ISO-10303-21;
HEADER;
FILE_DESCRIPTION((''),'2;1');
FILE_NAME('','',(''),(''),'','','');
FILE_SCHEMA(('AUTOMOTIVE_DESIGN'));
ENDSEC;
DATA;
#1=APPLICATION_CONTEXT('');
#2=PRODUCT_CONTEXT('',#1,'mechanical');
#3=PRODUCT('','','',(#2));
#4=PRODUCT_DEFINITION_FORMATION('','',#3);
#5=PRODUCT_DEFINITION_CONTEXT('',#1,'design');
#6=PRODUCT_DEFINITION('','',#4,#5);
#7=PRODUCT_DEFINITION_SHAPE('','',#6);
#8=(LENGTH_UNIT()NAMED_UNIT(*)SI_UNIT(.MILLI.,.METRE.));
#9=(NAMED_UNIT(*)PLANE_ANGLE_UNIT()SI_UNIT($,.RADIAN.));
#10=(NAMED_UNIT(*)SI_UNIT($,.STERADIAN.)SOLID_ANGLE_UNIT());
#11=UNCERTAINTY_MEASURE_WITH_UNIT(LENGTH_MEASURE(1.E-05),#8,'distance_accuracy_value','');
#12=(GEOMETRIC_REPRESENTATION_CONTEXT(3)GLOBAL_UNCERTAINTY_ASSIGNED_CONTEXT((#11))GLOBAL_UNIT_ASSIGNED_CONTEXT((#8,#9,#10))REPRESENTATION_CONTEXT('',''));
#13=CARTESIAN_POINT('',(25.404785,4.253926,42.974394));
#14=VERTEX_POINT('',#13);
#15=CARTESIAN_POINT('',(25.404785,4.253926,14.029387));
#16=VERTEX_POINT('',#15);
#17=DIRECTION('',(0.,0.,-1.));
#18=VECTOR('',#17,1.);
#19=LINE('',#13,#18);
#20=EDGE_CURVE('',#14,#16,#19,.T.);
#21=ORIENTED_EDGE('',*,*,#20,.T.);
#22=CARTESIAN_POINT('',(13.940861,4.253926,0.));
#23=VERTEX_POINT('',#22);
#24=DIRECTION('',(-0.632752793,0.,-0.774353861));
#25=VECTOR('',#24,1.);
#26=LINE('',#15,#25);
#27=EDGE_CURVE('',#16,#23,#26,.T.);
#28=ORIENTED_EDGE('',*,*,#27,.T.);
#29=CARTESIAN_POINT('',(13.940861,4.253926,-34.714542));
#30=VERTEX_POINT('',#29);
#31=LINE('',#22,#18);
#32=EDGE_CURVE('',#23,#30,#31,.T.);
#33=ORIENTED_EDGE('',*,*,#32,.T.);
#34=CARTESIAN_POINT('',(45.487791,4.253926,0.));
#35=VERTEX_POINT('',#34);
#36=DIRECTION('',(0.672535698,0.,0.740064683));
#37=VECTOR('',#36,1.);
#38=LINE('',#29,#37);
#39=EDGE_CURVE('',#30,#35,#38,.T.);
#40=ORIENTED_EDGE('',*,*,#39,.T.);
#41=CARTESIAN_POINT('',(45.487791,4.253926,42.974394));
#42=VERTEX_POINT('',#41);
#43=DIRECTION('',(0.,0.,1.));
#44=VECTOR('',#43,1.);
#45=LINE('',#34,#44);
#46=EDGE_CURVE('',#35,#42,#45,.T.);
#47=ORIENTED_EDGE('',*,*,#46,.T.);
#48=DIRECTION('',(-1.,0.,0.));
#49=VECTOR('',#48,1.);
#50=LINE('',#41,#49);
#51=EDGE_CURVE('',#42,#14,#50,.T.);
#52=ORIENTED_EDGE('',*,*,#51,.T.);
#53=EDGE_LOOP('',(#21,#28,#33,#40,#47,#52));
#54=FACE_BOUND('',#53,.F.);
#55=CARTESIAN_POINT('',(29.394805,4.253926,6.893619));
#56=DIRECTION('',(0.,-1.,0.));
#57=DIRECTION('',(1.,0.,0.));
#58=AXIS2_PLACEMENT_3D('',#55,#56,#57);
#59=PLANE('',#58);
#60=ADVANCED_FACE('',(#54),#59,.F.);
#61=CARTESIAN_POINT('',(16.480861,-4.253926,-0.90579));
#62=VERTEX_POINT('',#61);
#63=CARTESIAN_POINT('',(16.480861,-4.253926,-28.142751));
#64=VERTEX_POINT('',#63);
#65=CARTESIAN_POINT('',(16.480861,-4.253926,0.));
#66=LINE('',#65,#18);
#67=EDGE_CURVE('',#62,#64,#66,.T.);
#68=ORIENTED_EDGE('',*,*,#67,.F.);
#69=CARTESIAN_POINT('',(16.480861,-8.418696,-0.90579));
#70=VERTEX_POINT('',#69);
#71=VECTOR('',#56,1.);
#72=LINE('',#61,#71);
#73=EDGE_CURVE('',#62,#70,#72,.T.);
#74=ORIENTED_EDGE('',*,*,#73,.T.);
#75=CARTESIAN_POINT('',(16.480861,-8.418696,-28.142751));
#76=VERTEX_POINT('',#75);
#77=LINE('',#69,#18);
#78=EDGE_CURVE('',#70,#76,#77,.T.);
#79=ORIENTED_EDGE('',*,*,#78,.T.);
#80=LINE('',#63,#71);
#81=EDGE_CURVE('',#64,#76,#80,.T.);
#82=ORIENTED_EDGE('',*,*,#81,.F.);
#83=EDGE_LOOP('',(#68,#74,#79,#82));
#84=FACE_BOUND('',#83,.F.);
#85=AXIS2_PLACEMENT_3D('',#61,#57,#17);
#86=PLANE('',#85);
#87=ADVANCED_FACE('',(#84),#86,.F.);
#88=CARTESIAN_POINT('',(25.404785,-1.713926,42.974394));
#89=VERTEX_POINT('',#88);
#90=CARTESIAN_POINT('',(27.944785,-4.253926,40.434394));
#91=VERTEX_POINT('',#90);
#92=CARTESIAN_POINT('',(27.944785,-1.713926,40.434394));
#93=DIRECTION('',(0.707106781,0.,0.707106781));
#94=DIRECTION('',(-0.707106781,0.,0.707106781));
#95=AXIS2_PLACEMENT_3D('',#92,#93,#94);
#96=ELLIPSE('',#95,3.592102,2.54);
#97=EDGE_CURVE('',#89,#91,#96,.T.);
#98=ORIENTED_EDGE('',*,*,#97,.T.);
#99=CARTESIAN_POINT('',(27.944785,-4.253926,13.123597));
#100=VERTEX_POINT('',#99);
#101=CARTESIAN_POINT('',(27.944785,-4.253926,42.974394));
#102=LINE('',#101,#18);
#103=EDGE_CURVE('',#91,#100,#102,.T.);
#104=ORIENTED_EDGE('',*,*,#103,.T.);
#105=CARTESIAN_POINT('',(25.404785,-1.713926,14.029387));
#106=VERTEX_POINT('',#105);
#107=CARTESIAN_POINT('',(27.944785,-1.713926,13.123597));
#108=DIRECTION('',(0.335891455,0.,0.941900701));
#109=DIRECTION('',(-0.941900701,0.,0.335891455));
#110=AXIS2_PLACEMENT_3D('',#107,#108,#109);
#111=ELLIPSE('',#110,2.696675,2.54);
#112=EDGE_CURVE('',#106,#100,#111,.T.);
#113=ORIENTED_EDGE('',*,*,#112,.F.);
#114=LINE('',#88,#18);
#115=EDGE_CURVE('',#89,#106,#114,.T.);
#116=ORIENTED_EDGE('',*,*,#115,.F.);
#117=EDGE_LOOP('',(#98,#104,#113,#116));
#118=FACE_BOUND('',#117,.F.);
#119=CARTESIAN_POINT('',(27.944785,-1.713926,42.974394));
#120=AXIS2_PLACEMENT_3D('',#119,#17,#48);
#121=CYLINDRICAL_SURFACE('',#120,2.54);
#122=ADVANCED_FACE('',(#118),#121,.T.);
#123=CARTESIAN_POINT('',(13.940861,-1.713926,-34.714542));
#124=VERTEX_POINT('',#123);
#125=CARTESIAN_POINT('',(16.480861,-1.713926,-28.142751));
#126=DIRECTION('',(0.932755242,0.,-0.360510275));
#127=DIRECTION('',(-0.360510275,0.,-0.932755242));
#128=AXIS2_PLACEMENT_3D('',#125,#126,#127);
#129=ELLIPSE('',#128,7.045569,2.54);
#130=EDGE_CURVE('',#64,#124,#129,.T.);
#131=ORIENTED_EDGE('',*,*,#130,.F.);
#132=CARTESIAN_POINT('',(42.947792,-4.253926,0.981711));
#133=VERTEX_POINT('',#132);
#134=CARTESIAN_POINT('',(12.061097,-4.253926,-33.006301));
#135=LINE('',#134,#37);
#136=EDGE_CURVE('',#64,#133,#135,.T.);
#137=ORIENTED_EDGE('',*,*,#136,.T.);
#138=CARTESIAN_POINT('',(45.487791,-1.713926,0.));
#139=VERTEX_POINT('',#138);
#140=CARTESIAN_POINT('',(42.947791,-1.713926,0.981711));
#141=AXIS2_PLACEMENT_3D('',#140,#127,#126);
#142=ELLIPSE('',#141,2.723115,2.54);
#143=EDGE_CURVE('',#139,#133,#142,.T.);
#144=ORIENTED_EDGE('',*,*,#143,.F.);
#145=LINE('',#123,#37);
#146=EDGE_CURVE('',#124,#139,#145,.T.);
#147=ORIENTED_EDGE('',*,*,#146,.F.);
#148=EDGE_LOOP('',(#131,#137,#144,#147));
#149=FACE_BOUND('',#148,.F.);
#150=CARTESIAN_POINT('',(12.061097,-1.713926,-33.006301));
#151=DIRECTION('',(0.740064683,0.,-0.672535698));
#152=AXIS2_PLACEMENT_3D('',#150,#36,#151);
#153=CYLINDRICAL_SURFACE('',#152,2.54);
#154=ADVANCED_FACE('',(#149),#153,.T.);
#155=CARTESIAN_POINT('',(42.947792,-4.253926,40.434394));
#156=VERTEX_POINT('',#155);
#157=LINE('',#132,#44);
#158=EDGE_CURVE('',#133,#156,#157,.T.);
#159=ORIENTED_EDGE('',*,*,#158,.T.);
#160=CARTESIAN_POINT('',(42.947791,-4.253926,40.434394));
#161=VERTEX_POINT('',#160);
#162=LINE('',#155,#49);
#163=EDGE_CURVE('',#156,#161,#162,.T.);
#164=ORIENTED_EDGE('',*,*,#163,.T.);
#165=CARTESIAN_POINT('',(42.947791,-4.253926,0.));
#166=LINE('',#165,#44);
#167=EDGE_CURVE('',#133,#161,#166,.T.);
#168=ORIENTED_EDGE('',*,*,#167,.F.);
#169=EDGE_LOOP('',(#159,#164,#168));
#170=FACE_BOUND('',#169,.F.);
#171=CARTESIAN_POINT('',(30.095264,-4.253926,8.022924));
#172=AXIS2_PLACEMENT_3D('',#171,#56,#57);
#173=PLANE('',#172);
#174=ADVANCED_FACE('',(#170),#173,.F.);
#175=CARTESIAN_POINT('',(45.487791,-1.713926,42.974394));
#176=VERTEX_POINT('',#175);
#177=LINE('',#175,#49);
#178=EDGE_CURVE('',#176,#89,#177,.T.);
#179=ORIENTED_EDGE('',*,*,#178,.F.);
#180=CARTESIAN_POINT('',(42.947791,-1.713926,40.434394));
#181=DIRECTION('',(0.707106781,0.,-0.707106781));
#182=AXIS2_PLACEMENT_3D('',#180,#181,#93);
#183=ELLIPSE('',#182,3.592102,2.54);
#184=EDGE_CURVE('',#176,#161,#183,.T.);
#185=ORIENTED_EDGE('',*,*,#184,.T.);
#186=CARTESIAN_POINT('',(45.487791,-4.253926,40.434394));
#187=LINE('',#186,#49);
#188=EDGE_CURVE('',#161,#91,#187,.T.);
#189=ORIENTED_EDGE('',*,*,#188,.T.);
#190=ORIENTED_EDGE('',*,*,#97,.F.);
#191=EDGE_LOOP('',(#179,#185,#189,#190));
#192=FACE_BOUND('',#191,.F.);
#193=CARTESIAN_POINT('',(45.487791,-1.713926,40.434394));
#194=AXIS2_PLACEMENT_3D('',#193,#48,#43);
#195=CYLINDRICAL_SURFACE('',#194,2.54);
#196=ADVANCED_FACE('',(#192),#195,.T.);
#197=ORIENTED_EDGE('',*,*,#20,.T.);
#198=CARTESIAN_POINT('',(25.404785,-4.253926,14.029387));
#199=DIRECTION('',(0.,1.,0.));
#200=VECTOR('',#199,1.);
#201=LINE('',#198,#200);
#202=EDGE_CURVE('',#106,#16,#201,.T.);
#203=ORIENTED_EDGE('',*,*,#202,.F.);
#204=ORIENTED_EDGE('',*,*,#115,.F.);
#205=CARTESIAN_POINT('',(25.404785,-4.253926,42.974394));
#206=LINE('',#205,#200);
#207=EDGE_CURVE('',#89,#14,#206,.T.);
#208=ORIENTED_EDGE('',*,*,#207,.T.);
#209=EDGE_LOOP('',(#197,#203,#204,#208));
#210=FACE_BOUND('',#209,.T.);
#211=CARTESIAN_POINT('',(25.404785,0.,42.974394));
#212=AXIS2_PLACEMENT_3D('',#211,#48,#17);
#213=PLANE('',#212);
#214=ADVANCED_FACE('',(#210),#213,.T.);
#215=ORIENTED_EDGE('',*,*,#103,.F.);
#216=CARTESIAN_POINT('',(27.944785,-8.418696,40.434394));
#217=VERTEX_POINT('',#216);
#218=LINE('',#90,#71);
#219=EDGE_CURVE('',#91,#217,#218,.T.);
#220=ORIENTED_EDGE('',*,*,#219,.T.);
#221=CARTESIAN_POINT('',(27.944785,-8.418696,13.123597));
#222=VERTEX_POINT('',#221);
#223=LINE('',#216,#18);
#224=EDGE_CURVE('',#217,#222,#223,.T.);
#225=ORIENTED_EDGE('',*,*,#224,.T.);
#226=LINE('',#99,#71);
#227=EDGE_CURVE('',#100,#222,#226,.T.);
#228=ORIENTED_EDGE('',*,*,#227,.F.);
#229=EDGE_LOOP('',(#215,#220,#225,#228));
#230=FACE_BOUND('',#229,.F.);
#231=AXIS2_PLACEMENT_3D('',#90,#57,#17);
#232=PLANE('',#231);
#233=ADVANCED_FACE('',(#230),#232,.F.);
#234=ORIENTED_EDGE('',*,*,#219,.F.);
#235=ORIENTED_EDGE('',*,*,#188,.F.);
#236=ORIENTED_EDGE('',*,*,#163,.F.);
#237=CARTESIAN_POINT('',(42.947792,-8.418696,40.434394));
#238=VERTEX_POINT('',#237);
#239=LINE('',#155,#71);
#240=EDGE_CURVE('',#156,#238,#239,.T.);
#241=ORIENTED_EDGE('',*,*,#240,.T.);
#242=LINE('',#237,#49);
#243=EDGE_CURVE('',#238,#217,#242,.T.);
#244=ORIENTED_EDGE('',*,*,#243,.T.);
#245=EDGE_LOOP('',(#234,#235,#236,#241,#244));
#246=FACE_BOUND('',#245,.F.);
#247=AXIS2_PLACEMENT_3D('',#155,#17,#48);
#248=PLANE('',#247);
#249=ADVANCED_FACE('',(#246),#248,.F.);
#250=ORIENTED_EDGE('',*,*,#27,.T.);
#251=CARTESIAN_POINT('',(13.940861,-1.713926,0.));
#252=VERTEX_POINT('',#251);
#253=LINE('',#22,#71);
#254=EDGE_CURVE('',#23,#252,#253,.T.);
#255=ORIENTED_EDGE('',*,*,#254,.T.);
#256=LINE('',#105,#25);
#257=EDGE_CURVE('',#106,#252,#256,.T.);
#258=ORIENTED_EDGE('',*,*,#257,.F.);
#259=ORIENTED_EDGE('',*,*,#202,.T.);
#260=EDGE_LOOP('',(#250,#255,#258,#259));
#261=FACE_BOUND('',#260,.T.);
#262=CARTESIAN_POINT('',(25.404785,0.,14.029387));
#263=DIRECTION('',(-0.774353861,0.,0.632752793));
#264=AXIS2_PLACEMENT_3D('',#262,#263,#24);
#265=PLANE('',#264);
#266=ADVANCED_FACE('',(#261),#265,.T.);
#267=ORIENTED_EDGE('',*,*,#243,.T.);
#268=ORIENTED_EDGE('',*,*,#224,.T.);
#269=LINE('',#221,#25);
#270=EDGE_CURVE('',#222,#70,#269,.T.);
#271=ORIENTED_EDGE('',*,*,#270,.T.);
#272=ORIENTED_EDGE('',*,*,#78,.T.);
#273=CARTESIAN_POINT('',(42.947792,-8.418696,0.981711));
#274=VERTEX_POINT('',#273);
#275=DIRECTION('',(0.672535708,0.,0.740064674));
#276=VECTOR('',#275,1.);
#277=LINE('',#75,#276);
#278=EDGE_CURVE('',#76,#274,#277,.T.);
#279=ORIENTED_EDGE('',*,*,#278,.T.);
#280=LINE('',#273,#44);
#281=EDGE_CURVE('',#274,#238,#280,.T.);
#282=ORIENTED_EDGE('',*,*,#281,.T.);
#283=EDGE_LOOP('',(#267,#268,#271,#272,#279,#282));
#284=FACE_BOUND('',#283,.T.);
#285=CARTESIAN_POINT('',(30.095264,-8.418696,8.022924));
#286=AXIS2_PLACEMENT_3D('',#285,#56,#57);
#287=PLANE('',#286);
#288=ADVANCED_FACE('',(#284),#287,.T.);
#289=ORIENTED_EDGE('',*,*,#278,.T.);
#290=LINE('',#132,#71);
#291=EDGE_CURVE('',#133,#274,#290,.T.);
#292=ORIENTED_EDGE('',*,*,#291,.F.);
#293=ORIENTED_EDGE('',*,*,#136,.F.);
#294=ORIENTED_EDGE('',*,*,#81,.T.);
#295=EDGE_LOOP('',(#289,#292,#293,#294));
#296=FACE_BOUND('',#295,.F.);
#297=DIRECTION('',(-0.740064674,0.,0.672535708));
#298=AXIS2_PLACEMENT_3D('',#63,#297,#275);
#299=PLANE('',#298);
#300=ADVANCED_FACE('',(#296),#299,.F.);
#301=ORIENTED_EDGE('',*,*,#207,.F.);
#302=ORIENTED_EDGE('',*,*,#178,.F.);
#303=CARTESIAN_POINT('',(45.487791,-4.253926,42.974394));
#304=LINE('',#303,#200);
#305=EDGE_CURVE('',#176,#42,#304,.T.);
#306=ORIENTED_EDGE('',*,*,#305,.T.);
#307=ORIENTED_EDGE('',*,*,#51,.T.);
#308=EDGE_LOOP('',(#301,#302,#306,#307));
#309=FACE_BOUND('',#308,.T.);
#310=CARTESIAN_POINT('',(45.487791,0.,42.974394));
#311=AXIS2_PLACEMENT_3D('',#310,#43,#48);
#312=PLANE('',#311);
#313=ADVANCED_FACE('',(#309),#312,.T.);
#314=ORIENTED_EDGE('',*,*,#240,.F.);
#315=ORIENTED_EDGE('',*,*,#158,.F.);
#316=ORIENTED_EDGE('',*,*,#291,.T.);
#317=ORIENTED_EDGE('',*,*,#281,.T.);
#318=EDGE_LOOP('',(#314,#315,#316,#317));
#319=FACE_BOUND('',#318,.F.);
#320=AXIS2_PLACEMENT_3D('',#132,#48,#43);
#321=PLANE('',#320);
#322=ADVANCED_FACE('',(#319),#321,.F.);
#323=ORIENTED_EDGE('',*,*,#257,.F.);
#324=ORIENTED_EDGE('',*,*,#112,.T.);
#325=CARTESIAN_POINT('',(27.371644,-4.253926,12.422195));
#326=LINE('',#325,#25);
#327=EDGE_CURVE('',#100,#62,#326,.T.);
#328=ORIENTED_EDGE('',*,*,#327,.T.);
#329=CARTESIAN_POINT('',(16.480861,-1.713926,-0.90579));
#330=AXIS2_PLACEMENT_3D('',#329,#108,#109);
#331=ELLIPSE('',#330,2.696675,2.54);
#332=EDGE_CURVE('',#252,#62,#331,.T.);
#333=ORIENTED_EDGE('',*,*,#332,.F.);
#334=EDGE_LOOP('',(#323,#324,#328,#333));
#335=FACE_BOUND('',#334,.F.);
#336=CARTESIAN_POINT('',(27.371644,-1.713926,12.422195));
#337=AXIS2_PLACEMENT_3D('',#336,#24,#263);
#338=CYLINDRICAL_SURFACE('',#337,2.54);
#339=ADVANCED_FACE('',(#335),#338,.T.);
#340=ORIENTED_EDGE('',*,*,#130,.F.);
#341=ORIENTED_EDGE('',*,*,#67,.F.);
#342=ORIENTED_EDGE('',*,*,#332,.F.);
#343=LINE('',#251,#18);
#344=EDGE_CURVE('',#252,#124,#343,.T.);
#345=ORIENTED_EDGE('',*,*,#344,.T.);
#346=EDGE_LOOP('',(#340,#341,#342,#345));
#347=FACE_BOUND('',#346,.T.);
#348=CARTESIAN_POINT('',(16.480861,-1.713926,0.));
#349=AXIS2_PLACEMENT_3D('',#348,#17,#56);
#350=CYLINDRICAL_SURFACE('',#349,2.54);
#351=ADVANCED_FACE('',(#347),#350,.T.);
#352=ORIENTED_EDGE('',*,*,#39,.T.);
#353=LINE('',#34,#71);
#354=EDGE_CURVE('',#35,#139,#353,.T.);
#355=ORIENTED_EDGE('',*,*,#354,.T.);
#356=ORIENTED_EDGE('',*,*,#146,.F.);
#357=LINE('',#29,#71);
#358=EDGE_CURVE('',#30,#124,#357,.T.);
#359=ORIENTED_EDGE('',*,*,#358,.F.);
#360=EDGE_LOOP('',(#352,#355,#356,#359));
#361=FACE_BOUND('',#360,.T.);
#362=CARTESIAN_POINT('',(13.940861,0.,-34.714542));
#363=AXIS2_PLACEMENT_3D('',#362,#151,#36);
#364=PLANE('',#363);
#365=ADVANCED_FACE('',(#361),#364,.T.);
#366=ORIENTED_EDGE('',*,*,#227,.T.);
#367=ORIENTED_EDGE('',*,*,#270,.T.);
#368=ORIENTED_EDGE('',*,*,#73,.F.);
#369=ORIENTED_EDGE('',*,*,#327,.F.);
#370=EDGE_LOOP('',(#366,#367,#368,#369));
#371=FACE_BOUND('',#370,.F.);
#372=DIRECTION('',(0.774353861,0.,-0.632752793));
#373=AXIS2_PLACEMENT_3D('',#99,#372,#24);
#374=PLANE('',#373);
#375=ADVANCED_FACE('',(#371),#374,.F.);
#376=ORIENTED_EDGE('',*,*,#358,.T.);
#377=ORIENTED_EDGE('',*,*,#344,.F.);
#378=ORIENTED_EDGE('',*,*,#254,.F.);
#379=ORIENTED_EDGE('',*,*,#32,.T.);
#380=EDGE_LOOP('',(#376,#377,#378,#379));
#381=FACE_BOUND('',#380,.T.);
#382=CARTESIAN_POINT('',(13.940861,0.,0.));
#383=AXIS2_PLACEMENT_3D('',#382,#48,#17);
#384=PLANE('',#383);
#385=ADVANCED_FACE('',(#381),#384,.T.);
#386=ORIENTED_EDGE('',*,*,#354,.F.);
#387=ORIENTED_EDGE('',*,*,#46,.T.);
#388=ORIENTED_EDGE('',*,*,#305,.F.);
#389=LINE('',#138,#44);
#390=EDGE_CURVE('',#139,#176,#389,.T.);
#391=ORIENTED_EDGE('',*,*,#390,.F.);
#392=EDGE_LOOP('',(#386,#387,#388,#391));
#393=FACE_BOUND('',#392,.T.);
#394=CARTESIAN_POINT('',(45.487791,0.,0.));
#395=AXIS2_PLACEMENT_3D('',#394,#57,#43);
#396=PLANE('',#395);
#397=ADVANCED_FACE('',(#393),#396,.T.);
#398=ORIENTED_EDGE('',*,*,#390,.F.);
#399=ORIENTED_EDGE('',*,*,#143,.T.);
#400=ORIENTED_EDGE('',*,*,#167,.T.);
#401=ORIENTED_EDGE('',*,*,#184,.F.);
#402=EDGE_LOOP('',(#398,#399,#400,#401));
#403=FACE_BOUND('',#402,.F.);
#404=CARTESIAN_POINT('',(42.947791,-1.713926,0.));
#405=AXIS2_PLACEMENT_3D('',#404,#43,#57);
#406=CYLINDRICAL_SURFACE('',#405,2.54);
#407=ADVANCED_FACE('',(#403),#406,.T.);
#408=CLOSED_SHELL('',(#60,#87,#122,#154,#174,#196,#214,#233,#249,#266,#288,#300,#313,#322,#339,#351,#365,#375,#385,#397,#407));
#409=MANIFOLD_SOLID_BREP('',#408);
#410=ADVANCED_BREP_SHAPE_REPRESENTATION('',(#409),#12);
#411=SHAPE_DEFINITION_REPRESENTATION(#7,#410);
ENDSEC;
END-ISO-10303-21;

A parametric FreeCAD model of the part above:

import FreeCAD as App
import Part
import Sketcher

V = App.Vector
Q = App.Units.Quantity


def edges_at(feature, points):
    """Names of the edges that pass closest to the given points."""
    edges = feature.Shape.Edges
    near = lambda p: min(range(len(edges)), key=lambda i: edges[i].distToShape(Part.Vertex(*p))[0])
    return sorted({f"Edge{near(p) + 1}" for p in points})


def add_polygon(sketch, points):
    """Adds a closed chain of lines whose ends are joined by coincident constraints."""
    first, n = sketch.GeometryCount, len(points)
    for a, b in zip(points, points[1:] + points[:1]):
        sketch.addGeometry(Part.LineSegment(App.Vector(*a, 0), App.Vector(*b, 0)), False)
    for i in range(n):
        sketch.addConstraint(Sketcher.Constraint("Coincident", first + i, 2, first + (i + 1) % n, 1))

doc = App.newDocument("Part")
params = doc.addObject("Spreadsheet::Sheet", "Params")
for row, (alias, value) in enumerate([
    ("pad1_length", "8.507852 mm"),
    ("fillet_radius", "0.1 in"),
    ("pad2_length", "4.16477 mm"),
], start=1):
    params.set(f"A{row}", alias)
    params.set(f"B{row}", "=" + value)
    params.setAlias(f"B{row}", alias)

body = doc.addObject("PartDesign::Body", "Body")

sketch1 = body.newObject("Sketcher::SketchObject", "Sketch")
sketch1.AttachmentSupport = (doc.getObject("XZ_Plane"), [""])
sketch1.MapMode = "FlatFace"
add_polygon(sketch1, [(25.404785, 14.029387), (13.940861, 0), (13.940861, -34.714542), (45.487791, 0), (45.487791, 42.974394), (25.404785, 42.974394)])
sketch1.addConstraint([
    Sketcher.Constraint("Vertical", 1),
    Sketcher.Constraint("Vertical", 3),
    Sketcher.Constraint("Horizontal", 4),
    Sketcher.Constraint("Vertical", 5),
    Sketcher.Constraint("PointOnObject", 0, 2, -1),
    Sketcher.Constraint("PointOnObject", 2, 2, -1),
    Sketcher.Constraint("Distance", 0, Q("18.11754 mm")),
    Sketcher.Constraint("DistanceX", 4, 2, 4, 1, Q("20.083006 mm")),
    Sketcher.Constraint("DistanceY", 1, 2, 1, 1, Q("34.714542 mm")),
    Sketcher.Constraint("DistanceY", 3, 1, 3, 2, Q("42.974394 mm")),
    Sketcher.Constraint("DistanceY", 5, 2, 5, 1, Q("28.945007 mm")),
    Sketcher.Constraint("DistanceX", -1, 1, 0, 2, Q("13.940861 mm")),
])
pad1 = body.newObject("PartDesign::Pad", "Pad")
pad1.Profile = sketch1
pad1.setExpression("Length", "Params.pad1_length")
pad1.Midplane = True
doc.recompute()

fillet = body.newObject("PartDesign::Fillet", "Fillet")
fillet.Base = (pad1, edges_at(pad1, [
    (19.673, -4.254, 7.015),
    (13.941, -4.254, -17.357),
    (29.714, -4.254, -17.357),
    (45.488, -4.254, 21.487),
    (35.446, -4.254, 42.974),
    (25.405, -4.254, 28.502),
]))
fillet.setExpression("Radius", "Params.fillet_radius")

sketch2 = body.newObject("Sketcher::SketchObject", "Sketch001")
sketch2.AttachmentSupport = (doc.getObject("XZ_Plane"), [""])
sketch2.MapMode = "FlatFace"
sketch2.AttachmentOffset = App.Placement(V(0, 0, 4.253926), App.Rotation())
add_polygon(sketch2, [(27.944785, 13.123597), (16.480861, -0.90579), (16.480861, -28.142751), (42.947792, 0.981711), (42.947792, 40.434394), (27.944785, 40.434394)])
sketch2.addConstraint([
    Sketcher.Constraint("Vertical", 1),
    Sketcher.Constraint("Vertical", 3),
    Sketcher.Constraint("Horizontal", 4),
    Sketcher.Constraint("Vertical", 5),
    Sketcher.Constraint("DistanceY", 1, 2, 1, 1, Q("27.236961 mm")),
    Sketcher.Constraint("DistanceY", 0, 2, 2, 2, Q("1.887501 mm")),
    Sketcher.Constraint("Distance", 0, Q("18.11754 mm")),
    Sketcher.Constraint("Distance", 2, Q("39.353942 mm")),
    Sketcher.Constraint("DistanceX", 4, 2, 4, 1, Q("15.003007 mm")),
    Sketcher.Constraint("DistanceY", 3, 1, 3, 2, Q("39.452683 mm")),
    Sketcher.Constraint("DistanceX", -1, 1, 0, 2, Q("16.480861 mm")),
    Sketcher.Constraint("DistanceY", 0, 2, -1, 1, Q("0.90579 mm")),
])
pad2 = body.newObject("PartDesign::Pad", "Pad001")
pad2.Profile = sketch2
pad2.setExpression("Length", "Params.pad2_length")

doc.recompute()
